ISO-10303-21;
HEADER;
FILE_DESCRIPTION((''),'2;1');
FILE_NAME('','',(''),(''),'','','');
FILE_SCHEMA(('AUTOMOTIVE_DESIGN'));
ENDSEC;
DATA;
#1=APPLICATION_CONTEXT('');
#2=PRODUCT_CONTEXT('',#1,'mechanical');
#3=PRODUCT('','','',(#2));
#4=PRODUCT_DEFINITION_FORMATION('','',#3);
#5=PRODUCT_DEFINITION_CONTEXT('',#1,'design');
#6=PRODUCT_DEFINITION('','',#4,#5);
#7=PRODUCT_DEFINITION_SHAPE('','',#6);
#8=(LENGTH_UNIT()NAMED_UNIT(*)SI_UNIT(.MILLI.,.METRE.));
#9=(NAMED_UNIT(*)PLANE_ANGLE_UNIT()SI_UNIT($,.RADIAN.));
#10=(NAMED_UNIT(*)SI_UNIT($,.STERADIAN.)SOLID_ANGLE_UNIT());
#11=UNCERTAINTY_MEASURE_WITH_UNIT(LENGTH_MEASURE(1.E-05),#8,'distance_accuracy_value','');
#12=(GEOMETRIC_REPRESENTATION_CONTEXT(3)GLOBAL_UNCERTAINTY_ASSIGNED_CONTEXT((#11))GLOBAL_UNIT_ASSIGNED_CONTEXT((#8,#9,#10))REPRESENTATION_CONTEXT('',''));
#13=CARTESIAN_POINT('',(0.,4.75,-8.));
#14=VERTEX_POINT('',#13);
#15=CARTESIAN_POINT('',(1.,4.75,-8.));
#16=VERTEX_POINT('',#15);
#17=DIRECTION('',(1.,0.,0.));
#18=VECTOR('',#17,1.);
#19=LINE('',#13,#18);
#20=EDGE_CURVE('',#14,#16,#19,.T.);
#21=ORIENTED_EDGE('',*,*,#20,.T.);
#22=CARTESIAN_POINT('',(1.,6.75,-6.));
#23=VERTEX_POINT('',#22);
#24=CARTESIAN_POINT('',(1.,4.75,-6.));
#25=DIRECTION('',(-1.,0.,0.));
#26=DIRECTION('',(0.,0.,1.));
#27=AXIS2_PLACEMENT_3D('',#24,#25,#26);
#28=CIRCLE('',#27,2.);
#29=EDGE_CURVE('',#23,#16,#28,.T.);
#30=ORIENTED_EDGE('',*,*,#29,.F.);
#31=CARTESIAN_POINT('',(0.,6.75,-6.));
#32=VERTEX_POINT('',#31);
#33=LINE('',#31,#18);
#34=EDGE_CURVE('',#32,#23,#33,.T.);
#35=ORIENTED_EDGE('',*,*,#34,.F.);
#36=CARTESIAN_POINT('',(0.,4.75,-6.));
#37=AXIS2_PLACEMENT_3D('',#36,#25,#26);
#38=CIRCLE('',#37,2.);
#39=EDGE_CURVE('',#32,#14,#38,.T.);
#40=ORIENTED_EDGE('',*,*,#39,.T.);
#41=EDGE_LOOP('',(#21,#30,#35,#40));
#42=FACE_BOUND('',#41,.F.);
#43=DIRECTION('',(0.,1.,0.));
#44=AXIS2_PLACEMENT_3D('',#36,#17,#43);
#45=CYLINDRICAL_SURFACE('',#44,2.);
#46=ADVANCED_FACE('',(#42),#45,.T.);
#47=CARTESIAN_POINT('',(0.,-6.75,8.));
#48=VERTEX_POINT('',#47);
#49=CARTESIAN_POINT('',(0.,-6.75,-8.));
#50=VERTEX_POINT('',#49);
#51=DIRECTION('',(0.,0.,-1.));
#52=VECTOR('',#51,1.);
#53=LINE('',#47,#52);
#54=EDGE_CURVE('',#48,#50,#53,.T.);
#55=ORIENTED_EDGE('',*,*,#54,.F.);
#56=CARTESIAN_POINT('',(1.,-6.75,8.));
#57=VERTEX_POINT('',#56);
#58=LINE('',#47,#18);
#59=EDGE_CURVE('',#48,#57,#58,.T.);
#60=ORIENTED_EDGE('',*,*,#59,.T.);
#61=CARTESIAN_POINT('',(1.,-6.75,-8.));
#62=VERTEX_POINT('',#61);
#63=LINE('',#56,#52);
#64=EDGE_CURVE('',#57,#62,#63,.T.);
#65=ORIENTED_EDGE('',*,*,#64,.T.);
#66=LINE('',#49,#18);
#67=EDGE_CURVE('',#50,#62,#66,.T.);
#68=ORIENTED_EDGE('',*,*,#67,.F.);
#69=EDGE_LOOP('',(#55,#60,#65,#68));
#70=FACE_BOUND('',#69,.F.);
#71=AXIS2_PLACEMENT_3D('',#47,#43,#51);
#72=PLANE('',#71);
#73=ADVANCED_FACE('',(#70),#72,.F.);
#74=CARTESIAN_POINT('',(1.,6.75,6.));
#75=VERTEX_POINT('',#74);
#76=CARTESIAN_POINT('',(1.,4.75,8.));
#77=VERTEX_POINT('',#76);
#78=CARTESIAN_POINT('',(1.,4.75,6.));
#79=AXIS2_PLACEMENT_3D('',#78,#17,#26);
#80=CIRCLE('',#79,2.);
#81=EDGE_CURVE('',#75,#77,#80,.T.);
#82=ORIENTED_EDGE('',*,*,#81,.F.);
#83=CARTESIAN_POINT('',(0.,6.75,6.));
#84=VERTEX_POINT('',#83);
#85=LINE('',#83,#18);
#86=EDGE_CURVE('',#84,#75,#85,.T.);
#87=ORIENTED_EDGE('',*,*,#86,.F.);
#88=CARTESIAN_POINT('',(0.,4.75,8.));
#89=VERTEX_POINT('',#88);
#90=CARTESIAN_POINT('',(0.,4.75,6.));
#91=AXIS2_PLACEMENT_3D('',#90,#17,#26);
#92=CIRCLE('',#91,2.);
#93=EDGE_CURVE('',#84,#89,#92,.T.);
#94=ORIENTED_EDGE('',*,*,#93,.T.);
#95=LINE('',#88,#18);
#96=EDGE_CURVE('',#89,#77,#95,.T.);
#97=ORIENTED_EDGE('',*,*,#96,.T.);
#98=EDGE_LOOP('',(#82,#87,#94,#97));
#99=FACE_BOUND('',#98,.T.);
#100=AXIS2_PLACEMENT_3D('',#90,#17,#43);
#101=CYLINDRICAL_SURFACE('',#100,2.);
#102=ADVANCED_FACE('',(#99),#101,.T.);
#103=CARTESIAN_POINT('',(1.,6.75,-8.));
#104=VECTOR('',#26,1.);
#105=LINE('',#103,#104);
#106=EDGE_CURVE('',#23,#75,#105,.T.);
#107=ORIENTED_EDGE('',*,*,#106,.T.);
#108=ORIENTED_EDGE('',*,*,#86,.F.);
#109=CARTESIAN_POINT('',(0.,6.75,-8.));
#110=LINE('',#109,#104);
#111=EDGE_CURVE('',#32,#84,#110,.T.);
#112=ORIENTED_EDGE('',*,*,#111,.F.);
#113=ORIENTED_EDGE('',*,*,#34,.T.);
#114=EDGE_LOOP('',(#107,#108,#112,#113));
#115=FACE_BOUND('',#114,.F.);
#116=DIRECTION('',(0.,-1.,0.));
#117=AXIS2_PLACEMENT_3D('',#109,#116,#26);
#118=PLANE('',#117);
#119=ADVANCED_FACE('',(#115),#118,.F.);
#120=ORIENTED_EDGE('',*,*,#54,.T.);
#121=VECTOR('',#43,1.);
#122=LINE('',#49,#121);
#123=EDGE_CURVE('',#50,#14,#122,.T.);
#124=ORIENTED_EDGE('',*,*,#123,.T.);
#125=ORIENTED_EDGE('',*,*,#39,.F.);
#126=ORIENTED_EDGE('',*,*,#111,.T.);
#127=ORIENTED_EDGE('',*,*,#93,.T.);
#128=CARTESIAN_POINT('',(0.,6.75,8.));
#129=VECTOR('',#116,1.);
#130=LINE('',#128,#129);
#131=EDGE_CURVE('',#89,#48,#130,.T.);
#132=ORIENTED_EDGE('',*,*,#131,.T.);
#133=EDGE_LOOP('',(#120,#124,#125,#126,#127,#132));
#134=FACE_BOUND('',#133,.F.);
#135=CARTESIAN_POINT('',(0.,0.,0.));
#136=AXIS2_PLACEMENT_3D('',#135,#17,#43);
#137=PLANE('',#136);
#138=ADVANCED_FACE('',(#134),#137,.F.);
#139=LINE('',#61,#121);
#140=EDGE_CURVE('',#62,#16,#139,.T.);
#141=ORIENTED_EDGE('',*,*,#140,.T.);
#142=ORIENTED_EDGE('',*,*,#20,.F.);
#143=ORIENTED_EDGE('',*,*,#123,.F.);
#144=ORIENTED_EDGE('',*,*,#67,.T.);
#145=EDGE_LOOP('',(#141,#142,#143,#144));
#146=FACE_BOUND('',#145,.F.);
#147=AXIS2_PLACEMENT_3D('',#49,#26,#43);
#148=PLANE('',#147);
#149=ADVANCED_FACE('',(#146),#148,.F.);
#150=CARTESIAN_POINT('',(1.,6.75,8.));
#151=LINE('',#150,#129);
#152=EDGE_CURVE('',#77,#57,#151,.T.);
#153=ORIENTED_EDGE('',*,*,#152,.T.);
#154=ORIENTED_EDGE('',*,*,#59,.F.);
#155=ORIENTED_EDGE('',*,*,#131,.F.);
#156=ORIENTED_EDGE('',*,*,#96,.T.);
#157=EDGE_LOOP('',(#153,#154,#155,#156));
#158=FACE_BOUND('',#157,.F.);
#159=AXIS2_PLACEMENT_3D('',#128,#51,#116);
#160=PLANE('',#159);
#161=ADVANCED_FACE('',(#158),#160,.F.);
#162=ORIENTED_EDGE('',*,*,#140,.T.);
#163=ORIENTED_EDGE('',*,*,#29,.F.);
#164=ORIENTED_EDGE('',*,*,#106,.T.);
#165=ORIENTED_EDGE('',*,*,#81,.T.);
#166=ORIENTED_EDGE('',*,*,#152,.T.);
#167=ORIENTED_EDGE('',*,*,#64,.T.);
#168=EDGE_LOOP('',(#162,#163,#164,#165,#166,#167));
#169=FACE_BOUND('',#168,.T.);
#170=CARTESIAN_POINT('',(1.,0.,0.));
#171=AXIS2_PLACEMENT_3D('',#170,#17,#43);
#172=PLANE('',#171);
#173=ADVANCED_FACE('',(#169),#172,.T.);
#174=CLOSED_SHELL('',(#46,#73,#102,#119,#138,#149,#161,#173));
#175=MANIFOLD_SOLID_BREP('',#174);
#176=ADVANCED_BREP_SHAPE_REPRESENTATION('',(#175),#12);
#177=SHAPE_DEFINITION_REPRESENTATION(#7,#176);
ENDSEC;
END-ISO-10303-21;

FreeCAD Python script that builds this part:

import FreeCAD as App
import Part
import Sketcher
from FreeCAD import Vector
Q = App.Units.Quantity


def edges_at(feature, points):
    """Names of the edges that pass closest to the given points."""
    edges = feature.Shape.Edges
    near = lambda p: min(range(len(edges)), key=lambda i: edges[i].distToShape(Part.Vertex(*p))[0])
    return sorted({f"Edge{near(p) + 1}" for p in points})

doc = App.newDocument("Part")
params = doc.addObject("Spreadsheet::Sheet", "Params")
for row, (alias, value) in enumerate([
    ("sketch1_height", "16 mm"),
    ("sketch1_width", "13.5 mm"),
    ("pad1_length", "1 mm"),
    ("fillet_radius", "2 mm"),
], start=1):
    params.set(f"A{row}", alias)
    params.set(f"B{row}", "=" + value)
    params.setAlias(f"B{row}", alias)

body = doc.addObject("PartDesign::Body", "Body")

sketch1 = body.newObject("Sketcher::SketchObject", "Sketch")
sketch1.AttachmentSupport = (doc.getObject("YZ_Plane"), [""])
sketch1.MapMode = "FlatFace"
sketch1.addGeometry(Part.LineSegment(Vector(7, -8, 0), Vector(7, 8, 0)), False)
sketch1.addGeometry(Part.LineSegment(Vector(7, 8, 0), Vector(-7, 8, 0)), False)
sketch1.addGeometry(Part.LineSegment(Vector(-7, 8, 0), Vector(-7, -8, 0)), False)
sketch1.addGeometry(Part.LineSegment(Vector(-7, -8, 0), Vector(7, -8, 0)), False)
sketch1.addConstraint(Sketcher.Constraint("Coincident", 0, 2, 1, 1))
sketch1.addConstraint(Sketcher.Constraint("Coincident", 1, 2, 2, 1))
sketch1.addConstraint(Sketcher.Constraint("Coincident", 2, 2, 3, 1))
sketch1.addConstraint(Sketcher.Constraint("Coincident", 3, 2, 0, 1))
sketch1.addConstraint(Sketcher.Constraint("Vertical", 0))
sketch1.addConstraint(Sketcher.Constraint("Horizontal", 1))
sketch1.addConstraint(Sketcher.Constraint("Vertical", 2))
sketch1.addConstraint(Sketcher.Constraint("Horizontal", 3))
sketch1.addConstraint(Sketcher.Constraint("Symmetric", 0, 2, 2, 2, -1, 1))
sketch1.addConstraint(Sketcher.Constraint("DistanceY", 0, 1, 0, 2, Q("16 mm")))
sketch1.addConstraint(Sketcher.Constraint("DistanceX", 1, 2, 1, 1, Q("13.5 mm")))
sketch1.setExpression("Constraints[9]", "Params.sketch1_height")
sketch1.setExpression("Constraints[10]", "Params.sketch1_width")
pad1 = body.newObject("PartDesign::Pad", "Pad")
pad1.Profile = sketch1
pad1.setExpression("Length", "Params.pad1_length")
doc.recompute()

fillet = body.newObject("PartDesign::Fillet", "Fillet")
fillet.Base = (pad1, edges_at(pad1, [(0.5, 6.75, 8), (0.5, 6.75, -8)]))
fillet.setExpression("Radius", "Params.fillet_radius")

doc.recompute()
